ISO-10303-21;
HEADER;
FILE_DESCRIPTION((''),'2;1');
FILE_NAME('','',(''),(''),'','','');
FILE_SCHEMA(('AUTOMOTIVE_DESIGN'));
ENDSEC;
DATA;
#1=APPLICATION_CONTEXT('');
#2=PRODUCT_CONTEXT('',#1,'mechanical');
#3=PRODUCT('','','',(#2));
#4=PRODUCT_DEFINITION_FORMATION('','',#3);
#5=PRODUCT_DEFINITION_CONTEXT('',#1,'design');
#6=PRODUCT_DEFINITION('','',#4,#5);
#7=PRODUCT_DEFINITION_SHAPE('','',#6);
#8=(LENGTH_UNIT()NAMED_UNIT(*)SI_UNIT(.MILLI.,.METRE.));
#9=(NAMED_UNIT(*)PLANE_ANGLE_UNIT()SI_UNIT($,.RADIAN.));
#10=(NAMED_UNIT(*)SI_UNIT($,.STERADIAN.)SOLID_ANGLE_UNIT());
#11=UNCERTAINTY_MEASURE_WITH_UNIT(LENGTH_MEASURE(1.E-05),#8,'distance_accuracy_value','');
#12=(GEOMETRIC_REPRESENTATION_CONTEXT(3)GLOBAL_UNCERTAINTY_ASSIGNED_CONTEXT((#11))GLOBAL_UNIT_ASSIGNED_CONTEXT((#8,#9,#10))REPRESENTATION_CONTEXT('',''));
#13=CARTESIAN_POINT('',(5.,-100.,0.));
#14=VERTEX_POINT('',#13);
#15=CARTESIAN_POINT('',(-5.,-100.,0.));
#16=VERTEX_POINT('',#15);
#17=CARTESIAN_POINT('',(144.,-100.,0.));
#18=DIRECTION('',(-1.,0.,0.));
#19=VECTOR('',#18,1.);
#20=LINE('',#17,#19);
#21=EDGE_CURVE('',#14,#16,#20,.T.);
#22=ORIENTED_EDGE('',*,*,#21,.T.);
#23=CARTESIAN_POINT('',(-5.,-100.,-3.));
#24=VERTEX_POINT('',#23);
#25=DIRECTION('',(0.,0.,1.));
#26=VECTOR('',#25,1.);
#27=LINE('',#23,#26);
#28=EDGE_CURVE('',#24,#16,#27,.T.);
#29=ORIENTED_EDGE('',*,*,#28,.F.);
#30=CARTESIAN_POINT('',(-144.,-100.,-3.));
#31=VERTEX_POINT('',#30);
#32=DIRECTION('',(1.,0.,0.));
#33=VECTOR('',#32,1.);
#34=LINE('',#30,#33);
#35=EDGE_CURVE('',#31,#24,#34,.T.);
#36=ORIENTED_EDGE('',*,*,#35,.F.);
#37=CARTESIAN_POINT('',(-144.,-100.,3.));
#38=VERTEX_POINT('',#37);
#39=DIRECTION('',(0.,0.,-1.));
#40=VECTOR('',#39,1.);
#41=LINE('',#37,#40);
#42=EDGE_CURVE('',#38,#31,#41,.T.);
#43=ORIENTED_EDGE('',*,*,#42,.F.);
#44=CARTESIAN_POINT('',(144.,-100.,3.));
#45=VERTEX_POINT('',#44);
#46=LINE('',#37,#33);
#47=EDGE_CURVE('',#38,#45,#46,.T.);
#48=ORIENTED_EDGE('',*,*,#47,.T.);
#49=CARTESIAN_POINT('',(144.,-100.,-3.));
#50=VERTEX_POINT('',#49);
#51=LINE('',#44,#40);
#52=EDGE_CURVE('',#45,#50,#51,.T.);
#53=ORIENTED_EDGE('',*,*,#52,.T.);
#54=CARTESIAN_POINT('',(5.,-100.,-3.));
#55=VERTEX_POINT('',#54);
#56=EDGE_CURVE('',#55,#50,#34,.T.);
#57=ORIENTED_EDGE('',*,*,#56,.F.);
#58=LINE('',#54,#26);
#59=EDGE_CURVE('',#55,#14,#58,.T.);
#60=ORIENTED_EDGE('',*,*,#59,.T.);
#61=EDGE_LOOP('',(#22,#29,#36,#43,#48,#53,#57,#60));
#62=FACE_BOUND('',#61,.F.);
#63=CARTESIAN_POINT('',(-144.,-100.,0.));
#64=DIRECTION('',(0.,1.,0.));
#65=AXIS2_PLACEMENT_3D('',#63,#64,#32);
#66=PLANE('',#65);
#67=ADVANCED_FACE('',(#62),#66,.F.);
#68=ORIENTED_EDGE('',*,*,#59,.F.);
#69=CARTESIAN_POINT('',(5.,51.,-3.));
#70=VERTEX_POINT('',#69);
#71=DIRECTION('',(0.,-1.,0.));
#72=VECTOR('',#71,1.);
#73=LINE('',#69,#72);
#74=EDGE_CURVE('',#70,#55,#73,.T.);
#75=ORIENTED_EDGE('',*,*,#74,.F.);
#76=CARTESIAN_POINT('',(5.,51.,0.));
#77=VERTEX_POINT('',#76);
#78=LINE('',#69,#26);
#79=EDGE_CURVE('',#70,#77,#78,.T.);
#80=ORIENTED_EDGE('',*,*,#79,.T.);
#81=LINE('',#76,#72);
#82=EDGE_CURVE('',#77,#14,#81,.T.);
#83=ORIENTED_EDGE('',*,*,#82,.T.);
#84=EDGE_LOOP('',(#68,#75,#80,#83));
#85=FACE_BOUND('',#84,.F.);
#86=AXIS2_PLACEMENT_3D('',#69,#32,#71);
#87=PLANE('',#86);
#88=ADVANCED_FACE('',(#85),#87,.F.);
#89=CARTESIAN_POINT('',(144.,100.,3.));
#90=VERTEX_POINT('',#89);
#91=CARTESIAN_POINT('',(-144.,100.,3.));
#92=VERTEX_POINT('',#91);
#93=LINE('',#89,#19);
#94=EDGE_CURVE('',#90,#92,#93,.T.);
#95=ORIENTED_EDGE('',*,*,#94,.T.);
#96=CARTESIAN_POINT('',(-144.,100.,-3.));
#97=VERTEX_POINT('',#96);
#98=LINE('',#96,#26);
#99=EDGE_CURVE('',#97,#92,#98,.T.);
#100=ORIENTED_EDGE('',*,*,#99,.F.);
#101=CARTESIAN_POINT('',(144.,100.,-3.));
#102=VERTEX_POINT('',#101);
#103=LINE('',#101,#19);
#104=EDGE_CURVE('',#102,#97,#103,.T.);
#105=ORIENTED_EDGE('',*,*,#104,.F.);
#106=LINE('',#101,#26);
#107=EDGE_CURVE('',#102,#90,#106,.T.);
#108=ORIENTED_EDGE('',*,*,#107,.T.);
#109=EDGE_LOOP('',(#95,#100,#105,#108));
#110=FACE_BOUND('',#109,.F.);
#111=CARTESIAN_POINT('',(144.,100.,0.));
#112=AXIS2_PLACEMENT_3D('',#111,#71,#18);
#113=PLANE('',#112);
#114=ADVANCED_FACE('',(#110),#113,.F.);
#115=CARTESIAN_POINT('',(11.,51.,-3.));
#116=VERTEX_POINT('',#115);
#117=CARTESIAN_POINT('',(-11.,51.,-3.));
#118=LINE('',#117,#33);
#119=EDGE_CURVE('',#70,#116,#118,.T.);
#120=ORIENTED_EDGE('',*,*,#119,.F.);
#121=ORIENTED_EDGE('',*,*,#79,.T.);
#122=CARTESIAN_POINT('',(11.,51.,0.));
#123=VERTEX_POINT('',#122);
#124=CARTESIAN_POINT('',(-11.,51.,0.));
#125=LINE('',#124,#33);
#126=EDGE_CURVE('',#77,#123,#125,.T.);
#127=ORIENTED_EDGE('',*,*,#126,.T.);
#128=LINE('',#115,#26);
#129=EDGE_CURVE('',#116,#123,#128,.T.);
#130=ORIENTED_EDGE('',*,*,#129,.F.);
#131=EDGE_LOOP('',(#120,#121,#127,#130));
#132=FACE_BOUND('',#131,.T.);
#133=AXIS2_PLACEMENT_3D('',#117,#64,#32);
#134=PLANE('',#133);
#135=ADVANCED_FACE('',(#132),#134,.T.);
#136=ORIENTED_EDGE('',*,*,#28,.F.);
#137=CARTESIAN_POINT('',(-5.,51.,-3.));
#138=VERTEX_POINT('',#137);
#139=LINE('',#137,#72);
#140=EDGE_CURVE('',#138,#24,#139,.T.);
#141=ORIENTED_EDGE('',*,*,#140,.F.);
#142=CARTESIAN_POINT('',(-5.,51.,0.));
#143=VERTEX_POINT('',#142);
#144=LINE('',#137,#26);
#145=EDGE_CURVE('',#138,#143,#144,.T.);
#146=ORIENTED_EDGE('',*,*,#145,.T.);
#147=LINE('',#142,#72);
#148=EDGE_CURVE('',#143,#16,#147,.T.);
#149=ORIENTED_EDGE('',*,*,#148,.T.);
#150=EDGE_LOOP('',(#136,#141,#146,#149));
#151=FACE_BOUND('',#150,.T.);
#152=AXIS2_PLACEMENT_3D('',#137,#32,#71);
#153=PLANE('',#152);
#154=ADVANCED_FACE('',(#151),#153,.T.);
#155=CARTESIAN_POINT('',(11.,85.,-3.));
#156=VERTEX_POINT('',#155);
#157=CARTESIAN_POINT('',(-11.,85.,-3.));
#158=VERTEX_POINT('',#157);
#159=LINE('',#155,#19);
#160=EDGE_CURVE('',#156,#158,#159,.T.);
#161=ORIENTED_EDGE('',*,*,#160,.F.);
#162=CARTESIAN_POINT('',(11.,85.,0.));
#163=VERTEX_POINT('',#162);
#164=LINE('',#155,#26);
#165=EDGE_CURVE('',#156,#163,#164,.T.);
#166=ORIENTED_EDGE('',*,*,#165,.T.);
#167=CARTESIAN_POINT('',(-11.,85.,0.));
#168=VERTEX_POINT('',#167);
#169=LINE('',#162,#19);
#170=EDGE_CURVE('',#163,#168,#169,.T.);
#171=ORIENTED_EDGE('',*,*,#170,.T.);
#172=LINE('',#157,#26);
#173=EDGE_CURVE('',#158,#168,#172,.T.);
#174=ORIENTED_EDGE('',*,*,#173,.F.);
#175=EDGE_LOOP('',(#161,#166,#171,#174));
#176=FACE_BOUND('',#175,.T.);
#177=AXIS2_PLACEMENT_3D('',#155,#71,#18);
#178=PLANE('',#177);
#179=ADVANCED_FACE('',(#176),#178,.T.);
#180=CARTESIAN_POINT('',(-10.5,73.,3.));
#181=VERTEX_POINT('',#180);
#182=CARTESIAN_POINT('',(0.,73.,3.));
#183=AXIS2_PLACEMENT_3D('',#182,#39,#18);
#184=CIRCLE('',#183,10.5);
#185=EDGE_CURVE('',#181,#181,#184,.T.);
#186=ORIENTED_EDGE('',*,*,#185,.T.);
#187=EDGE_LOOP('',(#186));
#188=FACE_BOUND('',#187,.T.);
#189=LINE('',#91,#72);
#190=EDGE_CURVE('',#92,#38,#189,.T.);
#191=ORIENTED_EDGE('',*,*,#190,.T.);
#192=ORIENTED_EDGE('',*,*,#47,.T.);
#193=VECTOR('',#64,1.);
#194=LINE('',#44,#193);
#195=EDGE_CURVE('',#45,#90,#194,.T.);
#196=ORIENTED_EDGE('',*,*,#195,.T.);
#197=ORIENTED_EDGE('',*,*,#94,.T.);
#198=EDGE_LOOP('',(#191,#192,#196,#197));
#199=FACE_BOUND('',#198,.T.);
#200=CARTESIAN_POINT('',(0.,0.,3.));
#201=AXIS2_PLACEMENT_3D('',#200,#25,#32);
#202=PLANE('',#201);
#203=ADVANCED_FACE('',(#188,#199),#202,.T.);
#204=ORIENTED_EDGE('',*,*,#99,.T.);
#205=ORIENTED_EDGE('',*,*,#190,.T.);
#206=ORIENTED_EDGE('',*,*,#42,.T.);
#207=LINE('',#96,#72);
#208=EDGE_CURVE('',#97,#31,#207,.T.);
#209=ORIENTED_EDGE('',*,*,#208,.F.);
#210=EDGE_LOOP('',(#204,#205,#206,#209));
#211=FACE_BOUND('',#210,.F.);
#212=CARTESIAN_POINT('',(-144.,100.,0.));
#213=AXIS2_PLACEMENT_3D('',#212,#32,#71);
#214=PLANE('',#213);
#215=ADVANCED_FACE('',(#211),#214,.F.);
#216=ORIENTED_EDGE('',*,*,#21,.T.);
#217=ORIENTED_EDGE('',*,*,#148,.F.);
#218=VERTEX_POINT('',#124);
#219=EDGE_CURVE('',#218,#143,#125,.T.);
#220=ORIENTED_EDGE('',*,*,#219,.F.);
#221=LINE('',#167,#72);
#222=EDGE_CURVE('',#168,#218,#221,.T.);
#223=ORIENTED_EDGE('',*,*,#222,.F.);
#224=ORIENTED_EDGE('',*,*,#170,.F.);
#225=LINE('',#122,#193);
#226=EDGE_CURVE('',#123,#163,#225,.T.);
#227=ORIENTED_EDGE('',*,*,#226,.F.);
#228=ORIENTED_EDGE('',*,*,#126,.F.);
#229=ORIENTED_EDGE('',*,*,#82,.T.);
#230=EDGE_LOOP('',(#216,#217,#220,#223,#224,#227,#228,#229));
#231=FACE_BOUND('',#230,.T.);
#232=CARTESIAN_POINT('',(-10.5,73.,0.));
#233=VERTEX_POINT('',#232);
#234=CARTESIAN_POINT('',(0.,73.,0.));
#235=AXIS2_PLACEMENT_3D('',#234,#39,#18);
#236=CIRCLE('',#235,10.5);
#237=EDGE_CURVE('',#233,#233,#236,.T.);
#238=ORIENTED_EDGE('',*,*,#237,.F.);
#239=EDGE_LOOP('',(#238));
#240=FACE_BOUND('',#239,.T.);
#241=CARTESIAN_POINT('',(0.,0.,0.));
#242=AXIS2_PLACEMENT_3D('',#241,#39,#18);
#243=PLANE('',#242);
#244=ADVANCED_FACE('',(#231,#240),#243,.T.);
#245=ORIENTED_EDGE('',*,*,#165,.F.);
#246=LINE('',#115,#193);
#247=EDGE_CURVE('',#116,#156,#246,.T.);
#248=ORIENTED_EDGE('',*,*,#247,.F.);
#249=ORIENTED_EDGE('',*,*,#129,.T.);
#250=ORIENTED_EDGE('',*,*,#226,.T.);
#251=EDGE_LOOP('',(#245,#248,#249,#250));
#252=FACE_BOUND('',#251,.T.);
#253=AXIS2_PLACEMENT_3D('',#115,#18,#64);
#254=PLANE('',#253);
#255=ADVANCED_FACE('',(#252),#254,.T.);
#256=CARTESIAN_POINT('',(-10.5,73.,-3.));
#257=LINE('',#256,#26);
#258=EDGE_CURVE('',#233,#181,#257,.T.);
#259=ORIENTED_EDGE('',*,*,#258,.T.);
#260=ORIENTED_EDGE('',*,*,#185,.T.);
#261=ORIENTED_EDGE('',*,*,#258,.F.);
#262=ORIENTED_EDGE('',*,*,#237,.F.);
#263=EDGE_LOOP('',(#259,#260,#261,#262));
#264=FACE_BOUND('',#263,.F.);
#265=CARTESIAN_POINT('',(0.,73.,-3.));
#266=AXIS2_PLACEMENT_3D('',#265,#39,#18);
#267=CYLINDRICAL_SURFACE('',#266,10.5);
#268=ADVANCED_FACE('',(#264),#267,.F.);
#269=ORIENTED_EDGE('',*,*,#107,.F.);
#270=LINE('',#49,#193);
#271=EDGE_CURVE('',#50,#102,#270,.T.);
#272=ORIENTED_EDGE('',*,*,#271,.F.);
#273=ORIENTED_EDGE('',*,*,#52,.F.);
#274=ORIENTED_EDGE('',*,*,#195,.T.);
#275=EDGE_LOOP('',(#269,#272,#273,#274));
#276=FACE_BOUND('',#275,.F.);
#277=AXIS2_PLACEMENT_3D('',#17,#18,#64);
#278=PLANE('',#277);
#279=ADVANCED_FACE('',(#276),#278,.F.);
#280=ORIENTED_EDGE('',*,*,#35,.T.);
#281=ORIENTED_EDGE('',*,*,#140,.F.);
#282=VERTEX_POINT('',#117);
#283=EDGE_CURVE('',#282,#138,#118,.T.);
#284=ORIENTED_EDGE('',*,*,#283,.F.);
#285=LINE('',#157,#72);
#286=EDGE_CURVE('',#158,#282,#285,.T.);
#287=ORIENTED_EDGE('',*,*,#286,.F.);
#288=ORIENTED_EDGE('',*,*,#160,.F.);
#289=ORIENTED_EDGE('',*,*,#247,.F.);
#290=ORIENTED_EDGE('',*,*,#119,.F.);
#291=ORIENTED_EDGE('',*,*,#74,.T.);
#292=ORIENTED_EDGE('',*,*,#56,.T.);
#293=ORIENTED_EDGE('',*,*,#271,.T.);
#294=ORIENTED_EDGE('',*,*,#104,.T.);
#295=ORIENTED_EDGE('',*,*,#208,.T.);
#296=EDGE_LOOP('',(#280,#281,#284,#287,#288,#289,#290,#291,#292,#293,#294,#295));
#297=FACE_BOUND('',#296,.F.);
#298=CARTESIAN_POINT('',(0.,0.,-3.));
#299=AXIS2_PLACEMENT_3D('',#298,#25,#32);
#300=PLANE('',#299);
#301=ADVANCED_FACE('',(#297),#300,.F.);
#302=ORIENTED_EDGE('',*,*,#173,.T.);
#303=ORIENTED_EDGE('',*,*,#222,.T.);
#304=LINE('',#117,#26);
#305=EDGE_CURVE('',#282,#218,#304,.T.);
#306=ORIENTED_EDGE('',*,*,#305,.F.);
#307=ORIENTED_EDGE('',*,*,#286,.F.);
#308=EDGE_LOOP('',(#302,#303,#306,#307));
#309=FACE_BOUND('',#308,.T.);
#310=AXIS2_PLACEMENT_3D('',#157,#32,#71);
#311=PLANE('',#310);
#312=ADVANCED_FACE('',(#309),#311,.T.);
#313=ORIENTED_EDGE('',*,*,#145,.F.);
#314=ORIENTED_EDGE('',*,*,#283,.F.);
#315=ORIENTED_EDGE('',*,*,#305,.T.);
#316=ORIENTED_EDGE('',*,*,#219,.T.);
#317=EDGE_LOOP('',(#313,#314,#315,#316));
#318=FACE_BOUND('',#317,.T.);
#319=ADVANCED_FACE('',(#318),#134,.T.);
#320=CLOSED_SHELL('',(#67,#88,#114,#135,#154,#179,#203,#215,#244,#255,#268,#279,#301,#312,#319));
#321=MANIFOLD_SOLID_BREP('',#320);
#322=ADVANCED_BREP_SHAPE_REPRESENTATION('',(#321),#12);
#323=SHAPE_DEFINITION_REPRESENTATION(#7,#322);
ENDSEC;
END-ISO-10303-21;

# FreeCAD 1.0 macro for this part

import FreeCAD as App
import Part
import Sketcher
Q = App.Units.Quantity


def add_polygon(sketch, points):
    """Adds a closed chain of lines whose ends are joined by coincident constraints."""
    first, n = sketch.GeometryCount, len(points)
    for a, b in zip(points, points[1:] + points[:1]):
        sketch.addGeometry(Part.LineSegment(App.Vector(*a, 0), App.Vector(*b, 0)), False)
    for i in range(n):
        sketch.addConstraint(Sketcher.Constraint("Coincident", first + i, 2, first + (i + 1) % n, 1))

doc = App.newDocument("Part")
body = doc.addObject("PartDesign::Body", "Body")

# Sketch on XY plane
sketch1 = body.newObject("Sketcher::SketchObject", "Sketch")
sketch1.AttachmentSupport = (doc.getObject("XY_Plane"), [""])
sketch1.MapMode = "FlatFace"
add_polygon(sketch1, [(144, -100), (144, 100), (-144, 100), (-144, -100)])  # lines 0-3
sketch1.addConstraint([
    Sketcher.Constraint("Vertical", 0),
    Sketcher.Constraint("Horizontal", 1),
    Sketcher.Constraint("Vertical", 2),
    Sketcher.Constraint("Horizontal", 3),
    Sketcher.Constraint("Symmetric", 0, 2, 2, 2, -1, 1),
    Sketcher.Constraint("DistanceX", 1, 2, 1, 1, Q("288 mm")),
    Sketcher.Constraint("DistanceY", 0, 1, 0, 2, Q("200 mm")),
])
pad1 = body.newObject("PartDesign::Pad", "Pad")
pad1.Profile = sketch1
pad1.Length = 6
pad1.Midplane = True

# Sketch on XY plane
sketch2 = body.newObject("Sketcher::SketchObject", "Sketch001")
sketch2.AttachmentSupport = (doc.getObject("XY_Plane"), [""])
sketch2.MapMode = "FlatFace"
sketch2.AttachmentOffset = App.Placement(App.Vector(0, 0, -3), App.Rotation())
sketch2.addGeometry(Part.Circle(App.Vector(0, 73, 0), App.Vector(0, 0, 1), 10), False)
sketch2.addConstraint([
    Sketcher.Constraint("PointOnObject", 0, 3, -2),
    Sketcher.Constraint("Diameter", 0, Q("21 mm")),
    Sketcher.Constraint("DistanceY", -1, 1, 0, 3, Q("73 mm")),
])
pocket1 = body.newObject("PartDesign::Pocket", "Pocket")
pocket1.Profile = sketch2
pocket1.Type = "ThroughAll"
pocket1.Reversed = True

# Sketch on XY plane
sketch3 = body.newObject("Sketcher::SketchObject", "Sketch002")
sketch3.AttachmentSupport = (doc.getObject("XY_Plane"), [""])
sketch3.MapMode = "FlatFace"
sketch3.AttachmentOffset = App.Placement(App.Vector(0, 0, -3), App.Rotation())
add_polygon(sketch3, [(11, 51), (-11, 51), (-11, 85), (11, 85)])  # lines 0-3
sketch3.addGeometry(Part.Circle(App.Vector(0, 73, 0), App.Vector(0, 0, 1), 10), False)  # 4
sketch3.addConstraint([
    Sketcher.Constraint("Horizontal", 0),
    Sketcher.Constraint("Vertical", 1),
    Sketcher.Constraint("Horizontal", 2),
    Sketcher.Constraint("Vertical", 3),
    Sketcher.Constraint("PointOnObject", 4, 3, -2),
    Sketcher.Constraint("Diameter", 4, Q("21 mm")),
    Sketcher.Constraint("DistanceX", 0, 2, 0, 1, Q("22 mm")),
    Sketcher.Constraint("DistanceY", 1, 1, 1, 2, Q("34 mm")),
    Sketcher.Constraint("DistanceX", 0, 2, -1, 1, Q("11 mm")),
    Sketcher.Constraint("DistanceY", 0, 2, 4, 3, Q("22 mm")),
    Sketcher.Constraint("DistanceY", -1, 1, 4, 3, Q("73 mm")),
])
pocket2 = body.newObject("PartDesign::Pocket", "Pocket001")
pocket2.Profile = sketch3
pocket2.Length = 3
pocket2.Reversed = True

# Sketch on XY plane
sketch4 = body.newObject("Sketcher::SketchObject", "Sketch003")
sketch4.AttachmentSupport = (doc.getObject("XY_Plane"), [""])
sketch4.MapMode = "FlatFace"
sketch4.AttachmentOffset = App.Placement(App.Vector(0, 0, -3), App.Rotation())
add_polygon(sketch4, [(-5, -100), (-5, 51), (5, 51), (5, -100)])  # lines 0-3
sketch4.addConstraint([
    Sketcher.Constraint("Vertical", 0),
    Sketcher.Constraint("Horizontal", 1),
    Sketcher.Constraint("Vertical", 2),
    Sketcher.Constraint("Horizontal", 3),
    Sketcher.Constraint("DistanceX", 1, 1, 1, 2, Q("10 mm")),
    Sketcher.Constraint("DistanceY", 0, 1, 0, 2, Q("151 mm")),
    Sketcher.Constraint("DistanceX", 0, 2, -1, 1, Q("5 mm")),
    Sketcher.Constraint("DistanceY", -1, 1, 0, 2, Q("51 mm")),
])
pocket3 = body.newObject("PartDesign::Pocket", "Pocket002")
pocket3.Profile = sketch4
pocket3.Length = 3
pocket3.Reversed = True

doc.recompute()
